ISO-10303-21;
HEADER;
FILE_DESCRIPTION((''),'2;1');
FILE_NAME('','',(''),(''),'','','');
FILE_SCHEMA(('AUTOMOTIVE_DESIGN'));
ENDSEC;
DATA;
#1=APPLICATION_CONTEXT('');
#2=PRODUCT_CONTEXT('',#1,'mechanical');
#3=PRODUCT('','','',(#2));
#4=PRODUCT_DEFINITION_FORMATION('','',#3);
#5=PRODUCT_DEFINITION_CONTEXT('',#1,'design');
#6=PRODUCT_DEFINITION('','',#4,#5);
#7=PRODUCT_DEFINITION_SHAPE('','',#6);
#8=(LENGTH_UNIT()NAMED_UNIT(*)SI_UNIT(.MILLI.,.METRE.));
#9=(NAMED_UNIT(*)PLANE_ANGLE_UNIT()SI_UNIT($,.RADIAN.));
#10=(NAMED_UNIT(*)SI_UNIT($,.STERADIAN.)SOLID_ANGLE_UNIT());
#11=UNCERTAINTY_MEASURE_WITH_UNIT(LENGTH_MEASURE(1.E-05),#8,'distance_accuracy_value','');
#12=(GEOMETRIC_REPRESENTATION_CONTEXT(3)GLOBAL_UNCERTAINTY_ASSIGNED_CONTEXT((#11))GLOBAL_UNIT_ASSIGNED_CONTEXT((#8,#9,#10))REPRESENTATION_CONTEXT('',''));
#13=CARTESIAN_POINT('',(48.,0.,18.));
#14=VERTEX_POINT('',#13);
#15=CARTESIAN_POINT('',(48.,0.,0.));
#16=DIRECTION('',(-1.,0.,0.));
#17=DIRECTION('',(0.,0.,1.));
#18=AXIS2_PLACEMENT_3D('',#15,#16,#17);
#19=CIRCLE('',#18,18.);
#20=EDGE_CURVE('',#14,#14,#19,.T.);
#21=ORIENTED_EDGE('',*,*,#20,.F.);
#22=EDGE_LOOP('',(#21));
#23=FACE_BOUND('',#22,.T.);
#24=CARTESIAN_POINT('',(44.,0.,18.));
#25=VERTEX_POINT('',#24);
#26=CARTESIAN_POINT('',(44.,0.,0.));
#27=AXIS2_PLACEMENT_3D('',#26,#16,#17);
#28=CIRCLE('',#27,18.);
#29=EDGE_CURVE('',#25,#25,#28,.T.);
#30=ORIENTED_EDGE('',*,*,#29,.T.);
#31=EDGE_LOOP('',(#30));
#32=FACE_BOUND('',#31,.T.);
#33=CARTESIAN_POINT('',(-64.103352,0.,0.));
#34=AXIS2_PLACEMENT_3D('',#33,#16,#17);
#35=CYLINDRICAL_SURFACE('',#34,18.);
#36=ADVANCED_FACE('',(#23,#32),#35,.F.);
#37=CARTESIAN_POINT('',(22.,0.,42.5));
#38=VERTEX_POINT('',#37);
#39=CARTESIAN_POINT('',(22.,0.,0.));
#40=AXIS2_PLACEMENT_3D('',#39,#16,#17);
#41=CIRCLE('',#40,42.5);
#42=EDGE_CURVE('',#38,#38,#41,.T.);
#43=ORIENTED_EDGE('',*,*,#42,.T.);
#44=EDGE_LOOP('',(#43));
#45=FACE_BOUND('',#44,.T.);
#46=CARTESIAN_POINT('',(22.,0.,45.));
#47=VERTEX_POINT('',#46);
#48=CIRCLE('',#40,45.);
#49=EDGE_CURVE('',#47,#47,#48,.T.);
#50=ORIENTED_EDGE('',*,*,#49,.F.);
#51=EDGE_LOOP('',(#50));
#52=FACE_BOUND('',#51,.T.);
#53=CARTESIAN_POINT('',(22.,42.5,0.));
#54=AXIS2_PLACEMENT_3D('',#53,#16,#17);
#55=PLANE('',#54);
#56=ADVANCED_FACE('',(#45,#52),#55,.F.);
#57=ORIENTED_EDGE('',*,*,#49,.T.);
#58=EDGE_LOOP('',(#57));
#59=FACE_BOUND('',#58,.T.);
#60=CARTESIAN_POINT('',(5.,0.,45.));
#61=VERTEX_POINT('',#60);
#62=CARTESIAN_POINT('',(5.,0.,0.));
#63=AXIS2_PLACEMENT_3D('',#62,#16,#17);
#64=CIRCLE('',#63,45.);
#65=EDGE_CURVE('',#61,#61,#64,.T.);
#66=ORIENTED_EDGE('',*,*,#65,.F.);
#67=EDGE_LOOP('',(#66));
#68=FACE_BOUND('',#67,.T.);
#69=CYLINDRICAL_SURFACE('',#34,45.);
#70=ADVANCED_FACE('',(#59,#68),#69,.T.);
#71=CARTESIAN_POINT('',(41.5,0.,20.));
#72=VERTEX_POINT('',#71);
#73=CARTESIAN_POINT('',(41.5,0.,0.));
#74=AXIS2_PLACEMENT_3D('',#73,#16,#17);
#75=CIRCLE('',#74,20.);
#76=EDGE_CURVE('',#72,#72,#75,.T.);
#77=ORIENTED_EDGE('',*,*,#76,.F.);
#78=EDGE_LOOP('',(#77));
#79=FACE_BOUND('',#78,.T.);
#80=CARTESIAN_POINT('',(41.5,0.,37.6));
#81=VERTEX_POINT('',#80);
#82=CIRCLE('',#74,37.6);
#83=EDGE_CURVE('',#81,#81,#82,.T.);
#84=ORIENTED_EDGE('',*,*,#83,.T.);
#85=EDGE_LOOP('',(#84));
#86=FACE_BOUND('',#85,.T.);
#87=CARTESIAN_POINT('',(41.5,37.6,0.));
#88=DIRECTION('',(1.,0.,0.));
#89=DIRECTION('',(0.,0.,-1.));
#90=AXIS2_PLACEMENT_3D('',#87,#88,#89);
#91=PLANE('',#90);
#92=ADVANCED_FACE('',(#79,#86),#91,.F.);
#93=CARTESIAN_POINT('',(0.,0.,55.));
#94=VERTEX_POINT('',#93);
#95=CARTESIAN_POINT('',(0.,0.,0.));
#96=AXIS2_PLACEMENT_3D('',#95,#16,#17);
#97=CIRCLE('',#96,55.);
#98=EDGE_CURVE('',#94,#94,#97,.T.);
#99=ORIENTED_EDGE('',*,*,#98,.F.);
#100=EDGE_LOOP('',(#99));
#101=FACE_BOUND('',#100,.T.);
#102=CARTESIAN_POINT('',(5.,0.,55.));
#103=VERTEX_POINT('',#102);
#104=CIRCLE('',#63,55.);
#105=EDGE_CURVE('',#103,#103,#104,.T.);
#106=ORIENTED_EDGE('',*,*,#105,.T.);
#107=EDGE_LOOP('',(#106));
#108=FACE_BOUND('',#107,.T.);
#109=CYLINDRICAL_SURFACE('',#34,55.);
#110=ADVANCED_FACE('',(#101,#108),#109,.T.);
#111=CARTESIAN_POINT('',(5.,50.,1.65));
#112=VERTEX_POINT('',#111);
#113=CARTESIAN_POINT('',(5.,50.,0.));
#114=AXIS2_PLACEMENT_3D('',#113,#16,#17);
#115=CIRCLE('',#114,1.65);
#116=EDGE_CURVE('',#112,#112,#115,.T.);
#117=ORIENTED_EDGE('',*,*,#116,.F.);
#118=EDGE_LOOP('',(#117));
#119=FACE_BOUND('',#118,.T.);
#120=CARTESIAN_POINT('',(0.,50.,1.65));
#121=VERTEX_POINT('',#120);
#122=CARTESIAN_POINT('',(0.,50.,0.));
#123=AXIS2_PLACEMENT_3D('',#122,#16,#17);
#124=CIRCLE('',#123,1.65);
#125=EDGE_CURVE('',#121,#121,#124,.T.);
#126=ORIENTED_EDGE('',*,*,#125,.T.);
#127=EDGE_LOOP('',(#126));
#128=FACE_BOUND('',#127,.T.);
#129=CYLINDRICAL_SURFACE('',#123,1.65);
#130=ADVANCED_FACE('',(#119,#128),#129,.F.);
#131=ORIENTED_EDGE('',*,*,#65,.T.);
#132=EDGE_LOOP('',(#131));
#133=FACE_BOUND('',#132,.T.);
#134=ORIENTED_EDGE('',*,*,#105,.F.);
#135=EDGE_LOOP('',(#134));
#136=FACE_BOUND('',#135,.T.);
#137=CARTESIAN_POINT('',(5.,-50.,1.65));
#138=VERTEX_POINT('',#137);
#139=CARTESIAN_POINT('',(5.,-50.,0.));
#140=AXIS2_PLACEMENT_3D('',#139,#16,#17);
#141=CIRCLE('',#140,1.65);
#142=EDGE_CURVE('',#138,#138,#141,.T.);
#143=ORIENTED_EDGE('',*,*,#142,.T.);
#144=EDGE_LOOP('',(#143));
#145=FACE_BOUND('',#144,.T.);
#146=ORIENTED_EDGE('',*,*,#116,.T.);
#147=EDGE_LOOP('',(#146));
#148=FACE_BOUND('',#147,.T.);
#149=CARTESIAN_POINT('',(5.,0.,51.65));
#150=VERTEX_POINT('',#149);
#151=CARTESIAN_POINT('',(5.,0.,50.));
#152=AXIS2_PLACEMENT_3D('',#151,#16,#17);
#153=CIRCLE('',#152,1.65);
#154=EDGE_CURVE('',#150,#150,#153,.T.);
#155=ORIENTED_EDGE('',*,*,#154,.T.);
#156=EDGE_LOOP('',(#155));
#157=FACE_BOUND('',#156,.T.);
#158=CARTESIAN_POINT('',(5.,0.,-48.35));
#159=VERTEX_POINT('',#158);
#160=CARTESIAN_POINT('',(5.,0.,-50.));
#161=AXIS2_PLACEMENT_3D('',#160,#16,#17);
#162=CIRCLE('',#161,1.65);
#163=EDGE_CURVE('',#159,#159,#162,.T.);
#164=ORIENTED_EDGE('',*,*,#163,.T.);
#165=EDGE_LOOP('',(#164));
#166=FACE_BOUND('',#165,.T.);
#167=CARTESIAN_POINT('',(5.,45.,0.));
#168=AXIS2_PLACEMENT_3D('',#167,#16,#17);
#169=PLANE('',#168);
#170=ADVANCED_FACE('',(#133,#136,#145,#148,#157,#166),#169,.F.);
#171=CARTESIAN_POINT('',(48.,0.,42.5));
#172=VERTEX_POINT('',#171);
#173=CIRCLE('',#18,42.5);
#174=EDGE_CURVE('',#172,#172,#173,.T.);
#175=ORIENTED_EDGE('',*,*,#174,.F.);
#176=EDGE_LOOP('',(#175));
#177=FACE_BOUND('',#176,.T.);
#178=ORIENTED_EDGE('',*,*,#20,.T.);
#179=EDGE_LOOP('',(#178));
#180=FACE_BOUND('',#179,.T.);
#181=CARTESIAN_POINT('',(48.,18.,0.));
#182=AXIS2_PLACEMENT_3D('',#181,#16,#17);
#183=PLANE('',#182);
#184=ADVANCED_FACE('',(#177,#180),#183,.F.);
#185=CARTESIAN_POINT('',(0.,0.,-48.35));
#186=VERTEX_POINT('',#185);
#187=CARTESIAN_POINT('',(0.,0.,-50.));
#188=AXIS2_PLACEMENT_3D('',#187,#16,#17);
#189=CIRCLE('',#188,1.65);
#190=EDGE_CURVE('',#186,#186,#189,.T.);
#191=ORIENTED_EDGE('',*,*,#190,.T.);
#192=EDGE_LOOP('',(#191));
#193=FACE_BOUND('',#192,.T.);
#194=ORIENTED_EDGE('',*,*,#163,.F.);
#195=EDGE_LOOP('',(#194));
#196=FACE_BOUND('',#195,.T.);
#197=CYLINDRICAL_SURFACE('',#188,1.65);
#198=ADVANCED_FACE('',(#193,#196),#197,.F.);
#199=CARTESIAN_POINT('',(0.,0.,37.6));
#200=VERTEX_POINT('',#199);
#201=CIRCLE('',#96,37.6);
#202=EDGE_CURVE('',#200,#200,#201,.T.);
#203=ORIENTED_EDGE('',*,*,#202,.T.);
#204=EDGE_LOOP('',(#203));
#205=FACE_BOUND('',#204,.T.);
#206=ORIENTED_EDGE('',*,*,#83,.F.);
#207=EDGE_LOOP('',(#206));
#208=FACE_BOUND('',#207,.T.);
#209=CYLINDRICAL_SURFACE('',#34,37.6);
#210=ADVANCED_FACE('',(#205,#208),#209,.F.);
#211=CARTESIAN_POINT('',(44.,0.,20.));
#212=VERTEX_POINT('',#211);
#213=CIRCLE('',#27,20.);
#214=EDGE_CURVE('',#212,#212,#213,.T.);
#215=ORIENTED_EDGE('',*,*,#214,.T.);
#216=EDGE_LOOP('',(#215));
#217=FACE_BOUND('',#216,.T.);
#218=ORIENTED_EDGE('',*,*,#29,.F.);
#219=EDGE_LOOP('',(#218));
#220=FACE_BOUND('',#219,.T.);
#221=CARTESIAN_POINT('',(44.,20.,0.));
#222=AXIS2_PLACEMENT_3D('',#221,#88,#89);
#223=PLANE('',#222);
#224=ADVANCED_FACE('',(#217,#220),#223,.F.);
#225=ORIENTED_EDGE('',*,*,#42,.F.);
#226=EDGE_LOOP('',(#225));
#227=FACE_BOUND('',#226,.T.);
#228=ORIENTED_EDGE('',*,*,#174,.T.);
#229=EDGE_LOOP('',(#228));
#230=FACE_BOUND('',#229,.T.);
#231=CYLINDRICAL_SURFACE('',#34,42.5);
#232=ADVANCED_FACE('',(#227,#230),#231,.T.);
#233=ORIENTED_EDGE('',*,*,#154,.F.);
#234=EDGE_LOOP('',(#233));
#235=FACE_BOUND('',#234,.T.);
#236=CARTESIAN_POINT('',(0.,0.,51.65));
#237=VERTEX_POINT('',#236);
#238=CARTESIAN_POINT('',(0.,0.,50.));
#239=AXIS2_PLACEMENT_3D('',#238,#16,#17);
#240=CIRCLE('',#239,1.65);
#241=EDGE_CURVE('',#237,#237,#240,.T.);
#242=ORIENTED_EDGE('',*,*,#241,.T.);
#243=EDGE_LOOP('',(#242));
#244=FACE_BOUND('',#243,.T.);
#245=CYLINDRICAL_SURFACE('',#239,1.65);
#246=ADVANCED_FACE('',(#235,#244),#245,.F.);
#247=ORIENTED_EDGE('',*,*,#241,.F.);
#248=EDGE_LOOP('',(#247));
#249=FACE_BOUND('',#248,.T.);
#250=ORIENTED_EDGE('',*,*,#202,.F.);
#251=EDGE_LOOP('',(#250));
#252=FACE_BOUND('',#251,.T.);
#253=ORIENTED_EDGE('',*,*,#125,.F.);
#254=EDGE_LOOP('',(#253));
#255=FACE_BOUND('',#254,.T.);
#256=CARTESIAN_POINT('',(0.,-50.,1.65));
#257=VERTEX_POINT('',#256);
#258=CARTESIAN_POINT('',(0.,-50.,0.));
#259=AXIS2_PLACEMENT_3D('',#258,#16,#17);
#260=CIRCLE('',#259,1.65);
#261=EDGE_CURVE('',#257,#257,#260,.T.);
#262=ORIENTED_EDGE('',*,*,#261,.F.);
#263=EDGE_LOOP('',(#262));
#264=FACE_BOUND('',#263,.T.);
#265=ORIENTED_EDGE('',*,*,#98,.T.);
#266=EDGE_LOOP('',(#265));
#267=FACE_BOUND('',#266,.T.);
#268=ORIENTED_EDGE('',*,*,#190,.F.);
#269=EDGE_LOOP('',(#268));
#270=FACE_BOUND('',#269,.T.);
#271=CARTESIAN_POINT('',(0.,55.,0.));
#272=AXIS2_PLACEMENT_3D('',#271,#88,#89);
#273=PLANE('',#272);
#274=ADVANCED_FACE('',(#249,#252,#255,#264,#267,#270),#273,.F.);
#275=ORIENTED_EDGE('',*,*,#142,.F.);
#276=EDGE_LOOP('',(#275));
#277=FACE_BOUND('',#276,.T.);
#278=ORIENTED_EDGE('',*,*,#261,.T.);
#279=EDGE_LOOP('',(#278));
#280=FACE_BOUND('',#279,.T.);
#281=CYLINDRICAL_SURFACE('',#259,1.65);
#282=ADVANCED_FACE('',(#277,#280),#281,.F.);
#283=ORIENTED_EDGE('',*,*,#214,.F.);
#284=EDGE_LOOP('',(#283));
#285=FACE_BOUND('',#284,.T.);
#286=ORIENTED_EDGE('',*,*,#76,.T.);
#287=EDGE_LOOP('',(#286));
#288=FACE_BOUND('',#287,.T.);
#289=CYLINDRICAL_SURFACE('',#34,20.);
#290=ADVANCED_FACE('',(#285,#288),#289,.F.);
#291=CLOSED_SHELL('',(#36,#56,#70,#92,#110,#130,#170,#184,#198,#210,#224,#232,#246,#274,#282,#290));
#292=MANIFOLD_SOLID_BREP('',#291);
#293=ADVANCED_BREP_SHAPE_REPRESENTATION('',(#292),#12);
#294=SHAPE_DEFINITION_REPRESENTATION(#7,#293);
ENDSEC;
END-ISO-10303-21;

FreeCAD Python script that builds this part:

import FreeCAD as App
import Part
import Sketcher

V = App.Vector


def add_polygon(sketch, points):
    """Adds a closed chain of lines whose ends are joined by coincident constraints."""
    first, n = sketch.GeometryCount, len(points)
    for a, b in zip(points, points[1:] + points[:1]):
        sketch.addGeometry(Part.LineSegment(App.Vector(*a, 0), App.Vector(*b, 0)), False)
    for i in range(n):
        sketch.addConstraint(Sketcher.Constraint("Coincident", first + i, 2, first + (i + 1) % n, 1))

doc = App.newDocument("Part")
params = doc.addObject("Spreadsheet::Sheet", "Params")
for row, (alias, value) in enumerate([
    ("sketch1_width", "4 mm"),
    ("sketch1_width2", "26 mm"),
    ("sketch1_width3", "17 mm"),
    ("sketch1_width4", "5 mm"),
    ("sketch1_height", "2 mm"),
    ("revolution_angle", "360 deg"),
    ("sketch2_diameter", "3.3 mm"),
    ("hole_diameter", "3.3 mm"),
], start=1):
    params.set(f"A{row}", alias)
    params.set(f"B{row}", "=" + value)
    params.setAlias(f"B{row}", alias)

body = doc.addObject("PartDesign::Body", "Body")

# Sketch on XY plane
sketch1 = doc.addObject("Sketcher::SketchObject", "Sketch")
body.addObject(sketch1)
sketch1.AttachmentSupport = (doc.XY_Plane, [""])
sketch1.MapMode = "FlatFace"
add_polygon(sketch1, [(0, 37.6), (41.5, 37.6), (41.5, 20), (44, 20), (44, 18), (48, 18), (48, 42.5), (22, 42.5), (22, 45), (5, 45), (5, 55), (0, 55)])  # lines 0-11
sketch1.addConstraint([
    Sketcher.Constraint("Horizontal", 0),
    Sketcher.Constraint("Vertical", 1),
    Sketcher.Constraint("Horizontal", 2),
    Sketcher.Constraint("Vertical", 3),
    Sketcher.Constraint("Horizontal", 4),
    Sketcher.Constraint("Vertical", 5),
    Sketcher.Constraint("Horizontal", 6),
    Sketcher.Constraint("Vertical", 7),
    Sketcher.Constraint("Horizontal", 8),
    Sketcher.Constraint("Vertical", 9),
    Sketcher.Constraint("Horizontal", 10),
    Sketcher.Constraint("Vertical", 11),
    Sketcher.Constraint("PointOnObject", 10, 2, -2),
    Sketcher.Constraint("Equal", 2, 7),
    Sketcher.Constraint("DistanceX", 4, 1, 4, 2, 4.0),
    Sketcher.Constraint("DistanceX", 6, 2, 6, 1, 26.0),
    Sketcher.Constraint("DistanceX", 8, 2, 8, 1, 17.0),
    Sketcher.Constraint("DistanceX", 10, 2, 10, 1, 5.0),
    Sketcher.Constraint("DistanceY", 3, 2, 3, 1, 2.0),
    Sketcher.Constraint("DistanceY", 9, 1, 9, 2, 10.0),
    Sketcher.Constraint("DistanceX", 0, 1, 0, 2, 41.5),
    Sketcher.Constraint("DistanceY", 1, 2, 1, 1, 17.6),
    Sketcher.Constraint("DistanceY", 5, 1, 5, 2, 24.5),
    Sketcher.Constraint("DistanceY", -1, 1, 1, 2, 20.0),
])
sketch1.setExpression("Constraints[26]", "Params.sketch1_width")
sketch1.setExpression("Constraints[27]", "Params.sketch1_width2")
sketch1.setExpression("Constraints[28]", "Params.sketch1_width3")
sketch1.setExpression("Constraints[29]", "Params.sketch1_width4")
sketch1.setExpression("Constraints[30]", "Params.sketch1_height")
revolution = doc.addObject("PartDesign::Revolution", "Revolution")
body.addObject(revolution)
revolution.Profile = sketch1
revolution.ReferenceAxis = (sketch1, ["H_Axis"])
revolution.setExpression("Angle", "Params.revolution_angle")

# Sketch on YZ plane
sketch2 = doc.addObject("Sketcher::SketchObject", "Sketch001")
body.addObject(sketch2)
sketch2.AttachmentSupport = (doc.YZ_Plane, [""])
sketch2.MapMode = "FlatFace"
sketch2.addGeometry([
    Part.Circle(V(50, 0, 0), V(0, 0, 1), 1.6),
    Part.Circle(V(0, 50, 0), V(0, 0, 1), 1.6),
    Part.Circle(V(-50, 0, 0), V(0, 0, 1), 1.6),
    Part.Circle(V(0, -50, 0), V(0, 0, 1), 1.6),
], False)
sketch2.addConstraint([
    Sketcher.Constraint("Equal", 0, 1),
    Sketcher.Constraint("Equal", 1, 2),
    Sketcher.Constraint("Equal", 2, 3),
    Sketcher.Constraint("Symmetric", 0, 3, 2, 3, -1, 1),
    Sketcher.Constraint("Symmetric", 1, 3, 3, 3, -1, 1),
    Sketcher.Constraint("PointOnObject", 0, 3, -1),
    Sketcher.Constraint("PointOnObject", 1, 3, -2),
    Sketcher.Constraint("Diameter", 0, 3.3),
    Sketcher.Constraint("DistanceX", -1, 1, 0, 3, 50.0),
    Sketcher.Constraint("DistanceY", -1, 1, 1, 3, 50.0),
])
sketch2.setExpression("Constraints[7]", "Params.sketch2_diameter")
doc.recompute()
hole = doc.addObject("PartDesign::Hole", "Hole")
body.addObject(hole)
hole.Profile = sketch2
hole.ThreadType = "None"
hole.setExpression("Diameter", "Params.hole_diameter")
hole.DepthType = "ThroughAll"
hole.Reversed = True

doc.recompute()
